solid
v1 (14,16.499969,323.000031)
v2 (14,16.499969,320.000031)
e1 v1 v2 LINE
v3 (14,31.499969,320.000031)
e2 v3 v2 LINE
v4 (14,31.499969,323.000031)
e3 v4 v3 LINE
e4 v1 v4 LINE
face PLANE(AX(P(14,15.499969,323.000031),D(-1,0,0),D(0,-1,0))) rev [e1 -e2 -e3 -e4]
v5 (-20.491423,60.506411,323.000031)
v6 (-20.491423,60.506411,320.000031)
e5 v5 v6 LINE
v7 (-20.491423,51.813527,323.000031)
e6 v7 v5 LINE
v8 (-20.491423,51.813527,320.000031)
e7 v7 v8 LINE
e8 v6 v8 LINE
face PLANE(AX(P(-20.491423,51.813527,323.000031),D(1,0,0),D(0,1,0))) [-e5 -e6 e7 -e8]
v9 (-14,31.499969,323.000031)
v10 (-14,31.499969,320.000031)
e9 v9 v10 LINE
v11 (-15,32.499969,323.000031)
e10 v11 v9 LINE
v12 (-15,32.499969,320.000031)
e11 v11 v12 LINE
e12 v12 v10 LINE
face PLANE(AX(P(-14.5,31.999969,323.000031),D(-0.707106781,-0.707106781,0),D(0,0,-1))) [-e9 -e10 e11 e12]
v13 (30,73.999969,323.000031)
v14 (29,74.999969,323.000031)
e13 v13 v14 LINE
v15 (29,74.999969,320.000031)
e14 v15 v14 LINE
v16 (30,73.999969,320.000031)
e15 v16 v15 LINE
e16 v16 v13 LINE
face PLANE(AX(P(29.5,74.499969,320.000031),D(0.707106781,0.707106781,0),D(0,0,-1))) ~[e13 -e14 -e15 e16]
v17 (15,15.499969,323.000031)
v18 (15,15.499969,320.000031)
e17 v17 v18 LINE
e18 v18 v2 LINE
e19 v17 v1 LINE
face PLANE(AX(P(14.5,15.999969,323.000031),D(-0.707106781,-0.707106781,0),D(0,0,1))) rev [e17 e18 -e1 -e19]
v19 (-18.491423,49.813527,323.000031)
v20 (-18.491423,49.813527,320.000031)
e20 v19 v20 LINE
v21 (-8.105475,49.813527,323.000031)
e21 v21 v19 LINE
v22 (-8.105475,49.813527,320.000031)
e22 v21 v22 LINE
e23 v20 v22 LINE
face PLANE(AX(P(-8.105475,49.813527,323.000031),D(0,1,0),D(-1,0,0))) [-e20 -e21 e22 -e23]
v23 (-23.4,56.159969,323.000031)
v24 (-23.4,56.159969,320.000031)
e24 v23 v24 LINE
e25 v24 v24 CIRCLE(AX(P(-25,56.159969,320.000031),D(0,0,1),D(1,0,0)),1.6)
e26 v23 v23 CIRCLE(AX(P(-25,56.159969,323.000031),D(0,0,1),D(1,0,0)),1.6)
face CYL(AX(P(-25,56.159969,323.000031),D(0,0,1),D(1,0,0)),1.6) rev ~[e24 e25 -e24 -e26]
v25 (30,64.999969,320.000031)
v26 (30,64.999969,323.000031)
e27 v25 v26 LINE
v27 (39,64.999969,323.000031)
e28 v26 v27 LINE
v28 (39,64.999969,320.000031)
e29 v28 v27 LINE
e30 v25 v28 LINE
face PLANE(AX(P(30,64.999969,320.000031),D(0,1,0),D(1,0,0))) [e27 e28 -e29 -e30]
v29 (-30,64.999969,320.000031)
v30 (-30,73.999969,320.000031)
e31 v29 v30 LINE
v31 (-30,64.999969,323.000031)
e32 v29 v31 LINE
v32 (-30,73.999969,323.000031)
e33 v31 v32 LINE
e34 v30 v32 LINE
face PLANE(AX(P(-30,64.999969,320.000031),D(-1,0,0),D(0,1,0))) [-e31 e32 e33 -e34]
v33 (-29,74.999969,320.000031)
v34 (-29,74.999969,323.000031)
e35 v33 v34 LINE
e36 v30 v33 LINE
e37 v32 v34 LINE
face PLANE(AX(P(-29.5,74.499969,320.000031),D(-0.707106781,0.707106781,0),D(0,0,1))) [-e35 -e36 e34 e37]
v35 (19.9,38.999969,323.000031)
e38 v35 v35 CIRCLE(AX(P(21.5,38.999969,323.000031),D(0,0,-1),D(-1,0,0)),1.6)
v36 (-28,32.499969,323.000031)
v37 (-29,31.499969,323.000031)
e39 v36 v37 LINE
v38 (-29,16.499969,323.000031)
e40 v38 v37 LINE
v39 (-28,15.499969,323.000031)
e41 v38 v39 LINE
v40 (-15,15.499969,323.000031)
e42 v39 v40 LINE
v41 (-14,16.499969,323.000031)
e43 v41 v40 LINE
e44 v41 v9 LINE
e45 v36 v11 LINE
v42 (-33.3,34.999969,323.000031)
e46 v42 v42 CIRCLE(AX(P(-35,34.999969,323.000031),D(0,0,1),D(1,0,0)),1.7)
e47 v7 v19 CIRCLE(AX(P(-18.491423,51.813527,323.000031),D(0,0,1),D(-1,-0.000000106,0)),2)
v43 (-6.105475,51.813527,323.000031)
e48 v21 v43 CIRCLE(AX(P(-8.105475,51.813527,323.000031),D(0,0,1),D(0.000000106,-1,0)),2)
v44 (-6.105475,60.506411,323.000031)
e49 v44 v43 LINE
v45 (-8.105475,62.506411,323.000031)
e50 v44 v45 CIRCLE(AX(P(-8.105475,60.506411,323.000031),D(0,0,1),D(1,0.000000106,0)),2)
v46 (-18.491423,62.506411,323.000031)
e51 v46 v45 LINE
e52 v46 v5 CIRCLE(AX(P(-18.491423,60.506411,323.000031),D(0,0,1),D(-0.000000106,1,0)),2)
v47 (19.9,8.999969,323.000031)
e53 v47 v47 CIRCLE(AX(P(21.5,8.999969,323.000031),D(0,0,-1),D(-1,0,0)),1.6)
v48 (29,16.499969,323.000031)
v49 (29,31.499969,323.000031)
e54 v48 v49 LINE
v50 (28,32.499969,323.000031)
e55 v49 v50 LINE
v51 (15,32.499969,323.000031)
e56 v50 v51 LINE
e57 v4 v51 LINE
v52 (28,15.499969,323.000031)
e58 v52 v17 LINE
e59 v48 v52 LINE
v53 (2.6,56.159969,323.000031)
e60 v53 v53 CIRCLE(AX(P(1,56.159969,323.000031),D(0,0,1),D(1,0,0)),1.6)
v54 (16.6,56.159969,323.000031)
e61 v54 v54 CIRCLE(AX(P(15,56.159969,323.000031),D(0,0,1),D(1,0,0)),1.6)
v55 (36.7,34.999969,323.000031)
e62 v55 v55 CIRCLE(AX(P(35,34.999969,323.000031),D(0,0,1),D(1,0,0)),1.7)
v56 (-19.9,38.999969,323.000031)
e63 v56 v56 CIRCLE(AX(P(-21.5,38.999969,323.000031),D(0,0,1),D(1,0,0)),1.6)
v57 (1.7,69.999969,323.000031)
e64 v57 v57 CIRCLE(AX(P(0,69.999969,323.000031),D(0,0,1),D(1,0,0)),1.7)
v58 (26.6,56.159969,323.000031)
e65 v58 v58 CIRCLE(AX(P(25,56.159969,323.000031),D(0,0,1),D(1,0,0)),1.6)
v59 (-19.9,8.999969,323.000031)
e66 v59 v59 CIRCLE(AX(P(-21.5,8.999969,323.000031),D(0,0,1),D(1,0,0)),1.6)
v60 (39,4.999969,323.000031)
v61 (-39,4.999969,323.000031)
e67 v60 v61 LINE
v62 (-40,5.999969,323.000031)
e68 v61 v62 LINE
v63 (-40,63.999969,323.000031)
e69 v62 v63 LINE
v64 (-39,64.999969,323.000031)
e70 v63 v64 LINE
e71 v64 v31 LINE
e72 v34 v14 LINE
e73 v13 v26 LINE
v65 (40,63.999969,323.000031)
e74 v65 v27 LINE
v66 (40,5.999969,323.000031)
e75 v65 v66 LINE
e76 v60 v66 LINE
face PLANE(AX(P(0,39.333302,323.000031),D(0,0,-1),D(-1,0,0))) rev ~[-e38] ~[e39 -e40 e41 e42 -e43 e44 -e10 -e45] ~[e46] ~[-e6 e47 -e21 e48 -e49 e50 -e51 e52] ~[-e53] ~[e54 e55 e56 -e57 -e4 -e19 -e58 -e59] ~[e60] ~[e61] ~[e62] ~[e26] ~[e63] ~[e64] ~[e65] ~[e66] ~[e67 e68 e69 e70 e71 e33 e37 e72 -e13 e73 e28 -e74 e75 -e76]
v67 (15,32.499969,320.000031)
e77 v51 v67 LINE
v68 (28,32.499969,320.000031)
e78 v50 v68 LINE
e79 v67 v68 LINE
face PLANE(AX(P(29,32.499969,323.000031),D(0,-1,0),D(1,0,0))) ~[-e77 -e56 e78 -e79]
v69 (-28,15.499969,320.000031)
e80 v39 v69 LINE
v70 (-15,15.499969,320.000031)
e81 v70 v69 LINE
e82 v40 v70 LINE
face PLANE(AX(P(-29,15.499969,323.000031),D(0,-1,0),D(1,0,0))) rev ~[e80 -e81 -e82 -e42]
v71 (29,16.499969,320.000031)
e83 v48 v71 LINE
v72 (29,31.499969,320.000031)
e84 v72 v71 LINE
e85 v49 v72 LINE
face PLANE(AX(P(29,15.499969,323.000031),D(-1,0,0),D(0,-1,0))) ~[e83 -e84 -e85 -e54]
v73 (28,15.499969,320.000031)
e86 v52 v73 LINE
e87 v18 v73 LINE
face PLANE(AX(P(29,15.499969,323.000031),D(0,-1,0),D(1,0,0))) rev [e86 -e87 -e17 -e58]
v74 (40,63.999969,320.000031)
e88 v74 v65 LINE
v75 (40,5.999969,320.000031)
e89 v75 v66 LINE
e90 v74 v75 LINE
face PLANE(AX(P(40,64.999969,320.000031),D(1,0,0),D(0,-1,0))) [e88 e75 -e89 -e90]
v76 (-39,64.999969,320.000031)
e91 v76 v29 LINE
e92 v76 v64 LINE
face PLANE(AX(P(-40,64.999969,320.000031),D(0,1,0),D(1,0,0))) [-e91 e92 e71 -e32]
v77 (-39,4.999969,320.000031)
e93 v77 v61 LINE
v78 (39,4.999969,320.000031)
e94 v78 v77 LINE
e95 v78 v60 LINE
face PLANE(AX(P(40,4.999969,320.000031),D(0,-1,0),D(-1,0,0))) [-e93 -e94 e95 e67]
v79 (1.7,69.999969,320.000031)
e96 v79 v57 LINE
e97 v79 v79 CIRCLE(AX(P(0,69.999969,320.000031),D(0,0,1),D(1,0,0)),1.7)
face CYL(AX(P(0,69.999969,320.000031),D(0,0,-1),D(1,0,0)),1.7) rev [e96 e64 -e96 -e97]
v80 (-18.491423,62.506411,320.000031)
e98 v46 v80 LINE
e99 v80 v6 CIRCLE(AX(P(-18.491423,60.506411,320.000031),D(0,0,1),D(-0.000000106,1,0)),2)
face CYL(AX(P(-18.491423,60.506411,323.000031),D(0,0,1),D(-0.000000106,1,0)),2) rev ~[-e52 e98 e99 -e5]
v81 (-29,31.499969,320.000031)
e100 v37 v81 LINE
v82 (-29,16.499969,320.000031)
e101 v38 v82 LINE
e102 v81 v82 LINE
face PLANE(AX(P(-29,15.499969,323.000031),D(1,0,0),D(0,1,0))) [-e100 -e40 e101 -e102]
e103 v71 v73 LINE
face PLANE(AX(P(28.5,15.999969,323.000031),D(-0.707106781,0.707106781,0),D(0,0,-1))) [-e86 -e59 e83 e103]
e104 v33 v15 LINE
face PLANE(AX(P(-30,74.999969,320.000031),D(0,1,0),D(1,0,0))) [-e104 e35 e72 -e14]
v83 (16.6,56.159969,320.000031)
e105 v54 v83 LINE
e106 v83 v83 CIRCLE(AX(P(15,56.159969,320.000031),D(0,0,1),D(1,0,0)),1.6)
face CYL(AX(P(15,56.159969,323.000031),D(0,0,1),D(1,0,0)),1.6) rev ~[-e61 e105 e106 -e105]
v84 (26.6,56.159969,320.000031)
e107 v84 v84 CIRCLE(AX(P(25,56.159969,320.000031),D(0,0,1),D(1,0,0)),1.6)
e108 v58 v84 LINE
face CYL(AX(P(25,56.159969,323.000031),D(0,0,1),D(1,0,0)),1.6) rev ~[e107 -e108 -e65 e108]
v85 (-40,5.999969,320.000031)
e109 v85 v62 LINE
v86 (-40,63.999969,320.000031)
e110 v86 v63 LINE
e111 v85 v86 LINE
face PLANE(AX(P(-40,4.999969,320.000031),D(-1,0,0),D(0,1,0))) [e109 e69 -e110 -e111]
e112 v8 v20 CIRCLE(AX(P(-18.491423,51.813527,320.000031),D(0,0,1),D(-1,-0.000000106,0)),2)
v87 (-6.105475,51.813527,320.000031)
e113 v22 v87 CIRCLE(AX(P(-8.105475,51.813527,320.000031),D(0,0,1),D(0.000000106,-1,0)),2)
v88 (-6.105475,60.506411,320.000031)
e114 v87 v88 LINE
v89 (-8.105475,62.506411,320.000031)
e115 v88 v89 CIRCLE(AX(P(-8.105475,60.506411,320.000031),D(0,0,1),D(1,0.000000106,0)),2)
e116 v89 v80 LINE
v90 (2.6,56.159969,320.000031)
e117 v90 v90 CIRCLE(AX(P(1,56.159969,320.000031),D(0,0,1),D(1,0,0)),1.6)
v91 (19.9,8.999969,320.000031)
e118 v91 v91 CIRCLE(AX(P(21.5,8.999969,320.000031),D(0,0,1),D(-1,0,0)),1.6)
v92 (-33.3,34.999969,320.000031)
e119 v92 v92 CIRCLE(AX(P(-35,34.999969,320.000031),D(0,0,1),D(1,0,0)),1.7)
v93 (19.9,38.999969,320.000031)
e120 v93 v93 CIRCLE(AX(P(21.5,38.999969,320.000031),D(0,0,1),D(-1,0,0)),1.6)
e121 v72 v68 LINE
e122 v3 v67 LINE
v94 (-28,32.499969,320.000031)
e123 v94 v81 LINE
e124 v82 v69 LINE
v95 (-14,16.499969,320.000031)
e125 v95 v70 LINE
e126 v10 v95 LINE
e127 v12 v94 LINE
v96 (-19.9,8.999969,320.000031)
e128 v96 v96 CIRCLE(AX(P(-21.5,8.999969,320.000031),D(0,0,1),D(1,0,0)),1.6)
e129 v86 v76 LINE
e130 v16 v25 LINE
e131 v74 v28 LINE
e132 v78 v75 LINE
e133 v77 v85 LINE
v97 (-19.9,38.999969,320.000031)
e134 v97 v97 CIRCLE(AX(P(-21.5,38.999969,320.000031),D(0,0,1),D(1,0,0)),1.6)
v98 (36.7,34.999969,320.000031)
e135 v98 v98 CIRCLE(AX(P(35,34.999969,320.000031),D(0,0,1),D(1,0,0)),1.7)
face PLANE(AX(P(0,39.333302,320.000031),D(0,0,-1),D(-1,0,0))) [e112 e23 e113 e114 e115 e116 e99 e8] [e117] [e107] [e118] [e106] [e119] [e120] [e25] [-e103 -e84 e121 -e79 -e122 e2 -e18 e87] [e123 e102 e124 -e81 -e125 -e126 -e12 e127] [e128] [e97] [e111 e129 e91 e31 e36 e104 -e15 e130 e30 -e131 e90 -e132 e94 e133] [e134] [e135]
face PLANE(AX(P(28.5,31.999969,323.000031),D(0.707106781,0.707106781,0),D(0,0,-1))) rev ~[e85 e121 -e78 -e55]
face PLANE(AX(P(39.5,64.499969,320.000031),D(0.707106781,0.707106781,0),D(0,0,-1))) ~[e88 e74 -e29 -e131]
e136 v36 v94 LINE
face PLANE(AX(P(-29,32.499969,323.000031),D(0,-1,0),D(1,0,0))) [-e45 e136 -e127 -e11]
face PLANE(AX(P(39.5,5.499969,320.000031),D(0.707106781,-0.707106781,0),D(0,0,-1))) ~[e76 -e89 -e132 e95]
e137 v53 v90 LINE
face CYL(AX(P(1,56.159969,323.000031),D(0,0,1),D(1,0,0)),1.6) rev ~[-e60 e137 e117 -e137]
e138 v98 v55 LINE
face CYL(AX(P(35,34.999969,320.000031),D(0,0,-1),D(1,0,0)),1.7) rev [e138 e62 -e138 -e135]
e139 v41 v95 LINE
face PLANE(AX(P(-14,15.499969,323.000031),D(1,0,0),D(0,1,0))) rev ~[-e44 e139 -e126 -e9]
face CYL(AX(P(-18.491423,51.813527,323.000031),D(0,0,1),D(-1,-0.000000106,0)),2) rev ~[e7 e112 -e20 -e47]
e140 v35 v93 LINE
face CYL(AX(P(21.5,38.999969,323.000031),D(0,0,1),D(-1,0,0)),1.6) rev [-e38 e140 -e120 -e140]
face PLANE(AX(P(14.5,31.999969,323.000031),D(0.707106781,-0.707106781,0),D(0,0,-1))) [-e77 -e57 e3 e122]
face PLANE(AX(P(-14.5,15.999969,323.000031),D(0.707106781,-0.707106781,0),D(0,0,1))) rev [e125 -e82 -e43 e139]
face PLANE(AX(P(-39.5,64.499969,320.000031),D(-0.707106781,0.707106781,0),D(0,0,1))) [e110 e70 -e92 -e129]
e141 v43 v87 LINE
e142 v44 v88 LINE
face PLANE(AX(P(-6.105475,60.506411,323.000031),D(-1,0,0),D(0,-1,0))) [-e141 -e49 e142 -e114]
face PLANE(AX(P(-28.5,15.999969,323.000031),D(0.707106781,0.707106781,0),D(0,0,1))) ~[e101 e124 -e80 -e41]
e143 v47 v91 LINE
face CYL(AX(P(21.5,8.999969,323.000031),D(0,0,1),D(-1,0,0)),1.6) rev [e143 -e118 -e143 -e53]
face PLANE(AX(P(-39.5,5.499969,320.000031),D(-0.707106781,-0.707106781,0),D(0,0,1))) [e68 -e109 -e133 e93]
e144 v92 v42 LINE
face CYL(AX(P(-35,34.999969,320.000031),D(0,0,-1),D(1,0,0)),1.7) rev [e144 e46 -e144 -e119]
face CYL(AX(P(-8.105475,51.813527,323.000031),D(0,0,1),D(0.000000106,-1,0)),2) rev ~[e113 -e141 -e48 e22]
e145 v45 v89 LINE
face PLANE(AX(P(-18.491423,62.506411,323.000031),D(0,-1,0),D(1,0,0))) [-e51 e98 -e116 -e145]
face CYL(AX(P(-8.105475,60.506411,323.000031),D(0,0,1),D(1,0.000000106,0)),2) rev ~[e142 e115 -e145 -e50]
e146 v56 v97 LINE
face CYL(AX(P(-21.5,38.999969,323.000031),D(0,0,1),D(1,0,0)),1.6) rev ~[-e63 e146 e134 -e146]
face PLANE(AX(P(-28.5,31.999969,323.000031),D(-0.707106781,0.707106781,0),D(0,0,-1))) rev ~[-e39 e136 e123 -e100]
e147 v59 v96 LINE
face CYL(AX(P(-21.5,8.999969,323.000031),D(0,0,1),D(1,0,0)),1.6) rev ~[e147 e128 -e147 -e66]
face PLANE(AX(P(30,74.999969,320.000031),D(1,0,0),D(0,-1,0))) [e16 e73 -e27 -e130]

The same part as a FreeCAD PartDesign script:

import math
import FreeCAD as App
import Part
import Sketcher


def edges_at(feature, points):
    """Names of the edges that pass closest to the given points."""
    edges = feature.Shape.Edges
    near = lambda p: min(range(len(edges)), key=lambda i: edges[i].distToShape(Part.Vertex(*p))[0])
    return sorted({f"Edge{near(p) + 1}" for p in points})

doc = App.newDocument("Part")
body = doc.addObject("PartDesign::Body", "Body")

sketch1 = body.newObject("Sketcher::SketchObject", "Sketch")
sketch1.AttachmentSupport = (doc.getObject("XY_Plane"), [""])
sketch1.MapMode = "FlatFace"
sketch1.addGeometry(Part.LineSegment(App.Vector(-40, -30, 0), App.Vector(40, -30, 0)), False)
sketch1.addGeometry(Part.LineSegment(App.Vector(40, -30, 0), App.Vector(40, 30, 0)), False)
sketch1.addGeometry(Part.LineSegment(App.Vector(40, 30, 0), App.Vector(30, 30, 0)), False)
sketch1.addGeometry(Part.LineSegment(App.Vector(30, 30, 0), App.Vector(30, 40, 0)), False)
sketch1.addGeometry(Part.LineSegment(App.Vector(30, 40, 0), App.Vector(-30, 40, 0)), False)
sketch1.addGeometry(Part.LineSegment(App.Vector(-30, 40, 0), App.Vector(-30, 30, 0)), False)
sketch1.addGeometry(Part.LineSegment(App.Vector(-30, 30, 0), App.Vector(-40, 30, 0)), False)
sketch1.addGeometry(Part.LineSegment(App.Vector(-40, 30, 0), App.Vector(-40, -30, 0)), False)
sketch1.addGeometry(Part.Circle(App.Vector(35, 0, 0), App.Vector(0, 0, 1), 1.7), False)
sketch1.addGeometry(Part.Circle(App.Vector(-35, 0, 0), App.Vector(0, 0, 1), 1.7), False)
sketch1.addGeometry(Part.Circle(App.Vector(0, 35, 0), App.Vector(0, 0, 1), 1.7), False)
sketch1.addConstraint(Sketcher.Constraint("Coincident", 0, 2, 1, 1))
sketch1.addConstraint(Sketcher.Constraint("Coincident", 1, 2, 2, 1))
sketch1.addConstraint(Sketcher.Constraint("Coincident", 2, 2, 3, 1))
sketch1.addConstraint(Sketcher.Constraint("Coincident", 3, 2, 4, 1))
sketch1.addConstraint(Sketcher.Constraint("Coincident", 4, 2, 5, 1))
sketch1.addConstraint(Sketcher.Constraint("Coincident", 5, 2, 6, 1))
sketch1.addConstraint(Sketcher.Constraint("Coincident", 6, 2, 7, 1))
sketch1.addConstraint(Sketcher.Constraint("Coincident", 7, 2, 0, 1))
sketch1.addConstraint(Sketcher.Constraint("Horizontal", 0))
sketch1.addConstraint(Sketcher.Constraint("Vertical", 1))
sketch1.addConstraint(Sketcher.Constraint("Horizontal", 2))
sketch1.addConstraint(Sketcher.Constraint("Vertical", 3))
sketch1.addConstraint(Sketcher.Constraint("Horizontal", 4))
sketch1.addConstraint(Sketcher.Constraint("Vertical", 5))
sketch1.addConstraint(Sketcher.Constraint("Horizontal", 6))
sketch1.addConstraint(Sketcher.Constraint("Vertical", 7))
sketch1.addConstraint(Sketcher.Constraint("Equal", 8, 9))
sketch1.addConstraint(Sketcher.Constraint("Equal", 9, 10))
sketch1.addConstraint(Sketcher.Constraint("Symmetric", 8, 3, 9, 3, -1, 1))
sketch1.addConstraint(Sketcher.Constraint("Symmetric", 0, 2, 6, 2, -1, 1))
sketch1.addConstraint(Sketcher.Constraint("Symmetric", 2, 2, 5, 2, -2))
sketch1.addConstraint(Sketcher.Constraint("PointOnObject", 8, 3, -1))
sketch1.addConstraint(Sketcher.Constraint("PointOnObject", 10, 3, -2))
sketch1.addConstraint(Sketcher.Constraint("Equal", 4, 1))
sketch1.addConstraint(Sketcher.Constraint("Equal", 6, 3))
sketch1.addConstraint(Sketcher.Constraint("Diameter", 8, 3.4))
sketch1.addConstraint(Sketcher.Constraint("DistanceX", 0, 1, 0, 2, 80.0))
sketch1.addConstraint(Sketcher.Constraint("DistanceX", 2, 2, 2, 1, 10.0))
sketch1.addConstraint(Sketcher.Constraint("DistanceX", -1, 1, 8, 3, 35.0))
sketch1.addConstraint(Sketcher.Constraint("DistanceY", -1, 1, 10, 3, 35.0))
pad1 = body.newObject("PartDesign::Pad", "Pad")
pad1.Profile = sketch1
pad1.Length = 3
doc.recompute()

chamfer = body.newObject("PartDesign::Chamfer", "Chamfer")
chamfer.Base = (pad1, edges_at(pad1, [
    (40, 30, 1.5),
    (30, 40, 1.5),
    (-30, 40, 1.5),
    (-40, 30, 1.5),
    (-40, -30, 1.5),
    (40, -30, 1.5),
]))
chamfer.Size = 1
body2 = doc.addObject("PartDesign::Body", "Body001")
doc.recompute()

body.Placement = App.Placement(App.Vector(0, 34.999969, 320.000031), App.Rotation(App.Vector(0, 0, 1), 0))
boolean = body2.newObject("PartDesign::Boolean", "Boolean")
boolean.Type = "Fuse"
boolean.addObjects([body])

sketch2 = body2.newObject("Sketcher::SketchObject", "Sketch001")
sketch2.AttachmentSupport = (doc.getObject("XY_Plane001"), [""])
sketch2.MapMode = "FlatFace"
sketch2.AttachmentOffset = App.Placement(App.Vector(0, 0, 323.000031), App.Rotation())
sketch2.addGeometry(Part.Circle(App.Vector(-21.5, 8.999969, 0), App.Vector(0, 0, 1), 1.6), False)
sketch2.addGeometry(Part.Circle(App.Vector(-21.5, 38.999969, 0), App.Vector(0, 0, 1), 1.6), False)
sketch2.addGeometry(Part.LineSegment(App.Vector(-29, 32.499969, 0), App.Vector(-29, 15.499969, 0)), False)
sketch2.addGeometry(Part.LineSegment(App.Vector(-29, 15.499969, 0), App.Vector(-14, 15.499969, 0)), False)
sketch2.addGeometry(Part.LineSegment(App.Vector(-14, 15.499969, 0), App.Vector(-14, 32.499969, 0)), False)
sketch2.addGeometry(Part.LineSegment(App.Vector(-14, 32.499969, 0), App.Vector(-29, 32.499969, 0)), False)
sketch2.addConstraint(Sketcher.Constraint("Coincident", 2, 2, 3, 1))
sketch2.addConstraint(Sketcher.Constraint("Coincident", 3, 2, 4, 1))
sketch2.addConstraint(Sketcher.Constraint("Coincident", 4, 2, 5, 1))
sketch2.addConstraint(Sketcher.Constraint("Coincident", 5, 2, 2, 1))
sketch2.addConstraint(Sketcher.Constraint("Vertical", 2))
sketch2.addConstraint(Sketcher.Constraint("Horizontal", 3))
sketch2.addConstraint(Sketcher.Constraint("Vertical", 4))
sketch2.addConstraint(Sketcher.Constraint("Horizontal", 5))
sketch2.addConstraint(Sketcher.Constraint("Equal", 0, 1))
sketch2.addConstraint(Sketcher.Constraint("Vertical", 0, 3, 1, 3))
sketch2.addConstraint(Sketcher.Constraint("Diameter", 0, 3.2))
sketch2.addConstraint(Sketcher.Constraint("DistanceX", 3, 1, 3, 2, 15.0))
sketch2.addConstraint(Sketcher.Constraint("DistanceY", 2, 2, 2, 1, 17.0))
sketch2.addConstraint(Sketcher.Constraint("DistanceX", 2, 2, -1, 1, 29.0))
sketch2.addConstraint(Sketcher.Constraint("DistanceY", 0, 3, 1, 3, 30.0))
sketch2.addConstraint(Sketcher.Constraint("DistanceX", 0, 3, -1, 1, 21.5))
sketch2.addConstraint(Sketcher.Constraint("DistanceY", 0, 3, 2, 2, 6.5))
sketch2.addConstraint(Sketcher.Constraint("DistanceY", -1, 1, 0, 3, 8.999969))
pocket1 = body2.newObject("PartDesign::Pocket", "Pocket")
pocket1.Profile = sketch2
pocket1.Type = "ThroughAll"
doc.recompute()

mirrored = body2.newObject("PartDesign::Mirrored", "Mirrored")
mirrored.Originals = [pocket1]
mirrored.MirrorPlane = (doc.getObject("YZ_Plane001"), [""])
body2.Tip = mirrored
doc.recompute()

chamfer2 = body2.newObject("PartDesign::Chamfer", "Chamfer001")
chamfer2.Base = (mirrored, edges_at(mirrored, [
    (29, 15.5, 321.5),
    (29, 32.5, 321.5),
    (14, 32.5, 321.5),
    (14, 15.5, 321.5),
    (-14, 15.5, 321.5),
    (-29, 15.5, 321.5),
    (-29, 32.5, 321.5),
    (-14, 32.5, 321.5),
]))
chamfer2.Size = 1

sketch3 = body2.newObject("Sketcher::SketchObject", "Sketch002")
sketch3.AttachmentSupport = (doc.getObject("XY_Plane001"), [""])
sketch3.MapMode = "FlatFace"
sketch3.AttachmentOffset = App.Placement(App.Vector(0, 0, 323.000031), App.Rotation())
sketch3.addGeometry(Part.Circle(App.Vector(-25, 56.159969, 0), App.Vector(0, 0, 1), 1.6), False)
sketch3.addGeometry(Part.Circle(App.Vector(25, 56.159969, 0), App.Vector(0, 0, 1), 1.6), False)
sketch3.addGeometry(Part.Circle(App.Vector(15, 56.159969, 0), App.Vector(0, 0, 1), 1.6), False)
sketch3.addGeometry(Part.Circle(App.Vector(1, 56.159969, 0), App.Vector(0, 0, 1), 1.6), False)
sketch3.addGeometry(Part.ArcOfCircle(Part.Circle(App.Vector(-18.491423, 60.506411, 0), App.Vector(0, 0, 1), 2), math.radians(90.000006), math.radians(179.999994)), False)
sketch3.addGeometry(Part.LineSegment(App.Vector(-20.491423, 60.506411, 0), App.Vector(-20.491423, 51.813527, 0)), False)
sketch3.addGeometry(Part.ArcOfCircle(Part.Circle(App.Vector(-18.491423, 51.813527, 0), App.Vector(0, 0, 1), 2), math.radians(-179.999994), math.radians(-90.000006)), False)
sketch3.addGeometry(Part.LineSegment(App.Vector(-18.491423, 49.813527, 0), App.Vector(-8.105475, 49.813527, 0)), False)
sketch3.addGeometry(Part.ArcOfCircle(Part.Circle(App.Vector(-8.105475, 51.813527, 0), App.Vector(0, 0, 1), 2), math.radians(-89.999994), math.radians(-0.000006)), False)
sketch3.addGeometry(Part.LineSegment(App.Vector(-6.105475, 51.813527, 0), App.Vector(-6.105475, 60.506411, 0)), False)
sketch3.addGeometry(Part.ArcOfCircle(Part.Circle(App.Vector(-8.105475, 60.506411, 0), App.Vector(0, 0, 1), 2), math.radians(0.000006), math.radians(89.999994)), False)
sketch3.addGeometry(Part.LineSegment(App.Vector(-8.105475, 62.506411, 0), App.Vector(-18.491423, 62.506411, 0)), False)
sketch3.addConstraint(Sketcher.Constraint("Tangent", 4, 2, 5, 1))
sketch3.addConstraint(Sketcher.Constraint("Tangent", 5, 2, 6, 1))
sketch3.addConstraint(Sketcher.Constraint("Tangent", 6, 2, 7, 1))
sketch3.addConstraint(Sketcher.Constraint("Tangent", 7, 2, 8, 1))
sketch3.addConstraint(Sketcher.Constraint("Tangent", 8, 2, 9, 1))
sketch3.addConstraint(Sketcher.Constraint("Tangent", 9, 2, 10, 1))
sketch3.addConstraint(Sketcher.Constraint("Tangent", 10, 2, 11, 1))
sketch3.addConstraint(Sketcher.Constraint("Tangent", 11, 2, 4, 1))
sketch3.addConstraint(Sketcher.Constraint("Vertical", 5))
sketch3.addConstraint(Sketcher.Constraint("Horizontal", 7))
sketch3.addConstraint(Sketcher.Constraint("Vertical", 9))
sketch3.addConstraint(Sketcher.Constraint("Horizontal", 11))
sketch3.addConstraint(Sketcher.Constraint("Equal", 0, 1))
sketch3.addConstraint(Sketcher.Constraint("Equal", 1, 2))
sketch3.addConstraint(Sketcher.Constraint("Equal", 2, 3))
sketch3.addConstraint(Sketcher.Constraint("Equal", 4, 6))
sketch3.addConstraint(Sketcher.Constraint("Equal", 6, 8))
sketch3.addConstraint(Sketcher.Constraint("Equal", 8, 10))
sketch3.addConstraint(Sketcher.Constraint("Symmetric", 0, 3, 1, 3, -2))
sketch3.addConstraint(Sketcher.Constraint("Horizontal", 1, 3, 2, 3))
sketch3.addConstraint(Sketcher.Constraint("Horizontal", 2, 3, 3, 3))
sketch3.addConstraint(Sketcher.Constraint("Radius", 4, 2.0))
sketch3.addConstraint(Sketcher.Constraint("Diameter", 0, 3.2))
sketch3.addConstraint(Sketcher.Constraint("DistanceX", 0, 3, -1, 1, 25.0))
sketch3.addConstraint(Sketcher.Constraint("DistanceX", -1, 1, 2, 3, 15.0))
sketch3.addConstraint(Sketcher.Constraint("DistanceX", -1, 1, 3, 3, 1.0))
sketch3.addConstraint(Sketcher.Constraint("DistanceX", 7, 1, 7, 2, 10.385948))
sketch3.addConstraint(Sketcher.Constraint("DistanceY", 5, 2, 5, 1, 8.692884))
sketch3.addConstraint(Sketcher.Constraint("DistanceY", -1, 1, 0, 3, 56.159969))
sketch3.addConstraint(Sketcher.Constraint("DistanceY", -1, 1, 4, 3, 60.506411))
sketch3.addConstraint(Sketcher.Constraint("DistanceX", 4, 3, -1, 1, 18.491423))
pocket2 = body2.newObject("PartDesign::Pocket", "Pocket001")
pocket2.Profile = sketch3
pocket2.Type = "ThroughAll"

doc.recompute()
